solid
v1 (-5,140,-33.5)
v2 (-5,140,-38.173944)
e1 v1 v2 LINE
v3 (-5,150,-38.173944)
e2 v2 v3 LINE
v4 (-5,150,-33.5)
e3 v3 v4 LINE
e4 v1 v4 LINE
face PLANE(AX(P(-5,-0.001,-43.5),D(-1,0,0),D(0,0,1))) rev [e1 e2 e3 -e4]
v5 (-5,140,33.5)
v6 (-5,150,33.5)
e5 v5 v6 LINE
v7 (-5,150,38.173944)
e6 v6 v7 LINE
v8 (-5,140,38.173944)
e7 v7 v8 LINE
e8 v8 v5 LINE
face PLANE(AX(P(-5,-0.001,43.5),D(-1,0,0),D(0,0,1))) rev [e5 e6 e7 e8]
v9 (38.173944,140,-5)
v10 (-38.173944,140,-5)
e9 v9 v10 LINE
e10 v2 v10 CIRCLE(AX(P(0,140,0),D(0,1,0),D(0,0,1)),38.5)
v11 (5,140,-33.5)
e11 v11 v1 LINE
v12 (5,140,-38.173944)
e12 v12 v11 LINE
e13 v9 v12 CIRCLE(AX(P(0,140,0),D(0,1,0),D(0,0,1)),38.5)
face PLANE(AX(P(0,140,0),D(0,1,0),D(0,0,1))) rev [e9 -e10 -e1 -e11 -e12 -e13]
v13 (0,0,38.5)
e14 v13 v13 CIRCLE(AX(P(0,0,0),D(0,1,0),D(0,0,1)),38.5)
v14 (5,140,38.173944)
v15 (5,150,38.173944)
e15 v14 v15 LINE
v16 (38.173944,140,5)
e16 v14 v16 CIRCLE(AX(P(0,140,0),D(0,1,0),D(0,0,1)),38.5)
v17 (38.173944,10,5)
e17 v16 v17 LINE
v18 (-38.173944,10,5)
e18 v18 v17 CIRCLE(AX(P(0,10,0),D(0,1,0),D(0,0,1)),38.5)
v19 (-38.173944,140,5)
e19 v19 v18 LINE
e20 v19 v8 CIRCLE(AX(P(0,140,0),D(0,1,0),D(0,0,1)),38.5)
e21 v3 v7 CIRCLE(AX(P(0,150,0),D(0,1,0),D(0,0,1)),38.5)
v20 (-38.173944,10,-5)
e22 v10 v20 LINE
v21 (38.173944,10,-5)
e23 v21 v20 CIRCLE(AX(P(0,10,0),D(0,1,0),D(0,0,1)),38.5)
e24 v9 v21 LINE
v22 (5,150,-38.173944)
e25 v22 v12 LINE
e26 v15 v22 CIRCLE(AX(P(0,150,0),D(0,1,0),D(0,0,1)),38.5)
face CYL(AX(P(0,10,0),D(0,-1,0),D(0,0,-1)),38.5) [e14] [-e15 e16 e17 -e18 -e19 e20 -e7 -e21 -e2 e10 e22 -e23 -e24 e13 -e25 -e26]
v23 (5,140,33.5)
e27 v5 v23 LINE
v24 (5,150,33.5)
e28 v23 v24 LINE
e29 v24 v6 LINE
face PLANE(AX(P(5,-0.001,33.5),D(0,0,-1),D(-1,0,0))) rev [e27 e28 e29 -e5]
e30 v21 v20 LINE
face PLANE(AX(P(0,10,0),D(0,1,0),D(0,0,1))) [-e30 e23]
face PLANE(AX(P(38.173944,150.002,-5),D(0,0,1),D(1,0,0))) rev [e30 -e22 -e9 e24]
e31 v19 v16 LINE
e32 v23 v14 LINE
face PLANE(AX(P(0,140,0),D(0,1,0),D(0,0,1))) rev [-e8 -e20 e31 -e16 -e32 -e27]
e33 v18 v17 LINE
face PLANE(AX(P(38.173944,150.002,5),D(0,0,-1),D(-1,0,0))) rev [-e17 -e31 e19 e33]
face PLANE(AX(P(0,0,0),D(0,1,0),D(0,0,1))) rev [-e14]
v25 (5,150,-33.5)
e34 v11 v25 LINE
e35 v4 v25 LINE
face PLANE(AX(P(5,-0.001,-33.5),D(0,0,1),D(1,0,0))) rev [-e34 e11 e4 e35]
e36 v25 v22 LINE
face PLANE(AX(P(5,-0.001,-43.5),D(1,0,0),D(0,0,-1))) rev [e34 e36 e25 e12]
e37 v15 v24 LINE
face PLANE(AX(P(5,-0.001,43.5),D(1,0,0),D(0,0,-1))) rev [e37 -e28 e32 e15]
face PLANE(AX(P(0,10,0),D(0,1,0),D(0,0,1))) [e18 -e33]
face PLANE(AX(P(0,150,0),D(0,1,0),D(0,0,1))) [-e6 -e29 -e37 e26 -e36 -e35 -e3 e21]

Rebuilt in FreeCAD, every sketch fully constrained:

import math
import FreeCAD as App
import Part
import Sketcher
Q = App.Units.Quantity


def add_polygon(sketch, points):
    """Adds a closed chain of lines whose ends are joined by coincident constraints."""
    first, n = sketch.GeometryCount, len(points)
    for a, b in zip(points, points[1:] + points[:1]):
        sketch.addGeometry(Part.LineSegment(App.Vector(*a, 0), App.Vector(*b, 0)), False)
    for i in range(n):
        sketch.addConstraint(Sketcher.Constraint("Coincident", first + i, 2, first + (i + 1) % n, 1))

doc = App.newDocument("Part")
body = doc.addObject("PartDesign::Body", "Body")

# Sketch on XZ plane
sketch1 = body.newObject("Sketcher::SketchObject", "Sketch")
sketch1.AttachmentSupport = (doc.getObject("XZ_Plane"), [""])
sketch1.MapMode = "FlatFace"
sketch1.addGeometry(Part.Circle(App.Vector(0, 0, 0), App.Vector(0, 0, 1), 38), False)
sketch1.addConstraint(Sketcher.Constraint("Coincident", 0, 3, -1, 1))
sketch1.addConstraint(Sketcher.Constraint("Diameter", 0, Q("77 mm")))
pad1 = body.newObject("PartDesign::Pad", "Pad")
pad1.Profile = sketch1
pad1.Length = 10
pad1.Reversed = True
body2 = doc.addObject("PartDesign::Body", "Body001")

# Sketch on XZ plane
sketch2 = body2.newObject("Sketcher::SketchObject", "Sketch001")
sketch2.AttachmentSupport = (doc.getObject("XZ_Plane001"), [""])
sketch2.MapMode = "FlatFace"
sketch2.AttachmentOffset = App.Placement(App.Vector(0, 0, -150), App.Rotation())
sketch2.addGeometry(Part.Circle(App.Vector(0, 0, 0), App.Vector(0, 0, 1), 38), False)
sketch2.addConstraint(Sketcher.Constraint("Coincident", 0, 3, -1, 1))
sketch2.addConstraint(Sketcher.Constraint("Diameter", 0, Q("77 mm")))
pad2 = body2.newObject("PartDesign::Pad", "Pad001")
pad2.Profile = sketch2
pad2.Length = 10
body.AllowCompound = True
doc.recompute()

boolean = body.newObject("PartDesign::Boolean", "Boolean")
boolean.Type = "Fuse"
boolean.addObjects([body2])

# Sketch on XZ plane
sketch3 = body.newObject("Sketcher::SketchObject", "Sketch002")
sketch3.AttachmentSupport = (doc.getObject("XZ_Plane"), [""])
sketch3.MapMode = "FlatFace"
sketch3.AttachmentOffset = App.Placement(App.Vector(0, 0, -10), App.Rotation())
sketch3.addGeometry(Part.LineSegment(App.Vector(38, -5, 0), App.Vector(-38, -5, 0)), False)
sketch3.addGeometry(Part.ArcOfCircle(Part.Circle(App.Vector(0, 0, 0), App.Vector(0, 0, 1), 38), math.radians(172.54), math.radians(187.46)), False)
sketch3.addGeometry(Part.LineSegment(App.Vector(-38, 5, 0), App.Vector(38, 5, 0)), False)
sketch3.addGeometry(Part.ArcOfCircle(Part.Circle(App.Vector(0, 0, 0), App.Vector(0, 0, 1), 38), math.radians(-7.46), math.radians(7.46)), False)
sketch3.addConstraint(Sketcher.Constraint("Coincident", 0, 2, 1, 2))
sketch3.addConstraint(Sketcher.Constraint("Coincident", 1, 1, 2, 1))
sketch3.addConstraint(Sketcher.Constraint("Coincident", 2, 2, 3, 2))
sketch3.addConstraint(Sketcher.Constraint("Coincident", 3, 1, 0, 1))
sketch3.addConstraint(Sketcher.Constraint("Horizontal", 0))
sketch3.addConstraint(Sketcher.Constraint("Horizontal", 2))
sketch3.addConstraint(Sketcher.Constraint("Coincident", 1, 3, -1, 1))
sketch3.addConstraint(Sketcher.Constraint("Coincident", 3, 3, -1, 1))
sketch3.addConstraint(Sketcher.Constraint("Equal", 1, 3))
sketch3.addConstraint(Sketcher.Constraint("Vertical", 0, 2, 1, 1))
sketch3.addConstraint(Sketcher.Constraint("Radius", 1, Q("38.5 mm")))
sketch3.addConstraint(Sketcher.Constraint("DistanceY", 0, 2, -1, 1, Q("5 mm")))
pad3 = body.newObject("PartDesign::Pad", "Pad002")
pad3.Profile = sketch3
pad3.Length = 140
pad3.Reversed = True

# Sketch on XZ plane
sketch4 = body.newObject("Sketcher::SketchObject", "Sketch003")
sketch4.AttachmentSupport = (doc.getObject("XZ_Plane"), [""])
sketch4.MapMode = "FlatFace"
sketch4.AttachmentOffset = App.Placement(App.Vector(0, 0, -150), App.Rotation())
add_polygon(sketch4, [(-5, -44), (-5, -34), (5, -34), (5, -44)])  # lines 0-3
sketch4.addConstraint(Sketcher.Constraint("Vertical", 0))
sketch4.addConstraint(Sketcher.Constraint("Horizontal", 1))
sketch4.addConstraint(Sketcher.Constraint("Vertical", 2))
sketch4.addConstraint(Sketcher.Constraint("Horizontal", 3))
sketch4.addConstraint(Sketcher.Constraint("Equal", 3, 0))
sketch4.addConstraint(Sketcher.Constraint("DistanceX", 1, 1, 1, 2, Q("10 mm")))
sketch4.addConstraint(Sketcher.Constraint("DistanceX", 0, 2, -1, 1, Q("5 mm")))
sketch4.addConstraint(Sketcher.Constraint("DistanceY", 0, 2, -1, 1, Q("33.5 mm")))
pocket1 = body.newObject("PartDesign::Pocket", "Pocket")
pocket1.Profile = sketch4
pocket1.Type = "UpToFirst"
pocket1.Reversed = True

# Sketch on XZ plane
sketch5 = body.newObject("Sketcher::SketchObject", "Sketch004")
sketch5.AttachmentSupport = (doc.getObject("XZ_Plane"), [""])
sketch5.MapMode = "FlatFace"
sketch5.AttachmentOffset = App.Placement(App.Vector(0, 0, -150), App.Rotation())
add_polygon(sketch5, [(-5, 34), (-5, 44), (5, 44), (5, 34)])  # lines 0-3
sketch5.addConstraint(Sketcher.Constraint("Vertical", 0))
sketch5.addConstraint(Sketcher.Constraint("Horizontal", 1))
sketch5.addConstraint(Sketcher.Constraint("Vertical", 2))
sketch5.addConstraint(Sketcher.Constraint("Horizontal", 3))
sketch5.addConstraint(Sketcher.Constraint("Equal", 3, 0))
sketch5.addConstraint(Sketcher.Constraint("DistanceX", 1, 1, 1, 2, Q("10 mm")))
sketch5.addConstraint(Sketcher.Constraint("DistanceX", 0, 2, -1, 1, Q("5 mm")))
sketch5.addConstraint(Sketcher.Constraint("DistanceY", -1, 1, 0, 2, Q("43.5 mm")))
pocket2 = body.newObject("PartDesign::Pocket", "Pocket001")
pocket2.Profile = sketch5
pocket2.Type = "UpToFirst"
pocket2.Reversed = True

doc.recompute()
